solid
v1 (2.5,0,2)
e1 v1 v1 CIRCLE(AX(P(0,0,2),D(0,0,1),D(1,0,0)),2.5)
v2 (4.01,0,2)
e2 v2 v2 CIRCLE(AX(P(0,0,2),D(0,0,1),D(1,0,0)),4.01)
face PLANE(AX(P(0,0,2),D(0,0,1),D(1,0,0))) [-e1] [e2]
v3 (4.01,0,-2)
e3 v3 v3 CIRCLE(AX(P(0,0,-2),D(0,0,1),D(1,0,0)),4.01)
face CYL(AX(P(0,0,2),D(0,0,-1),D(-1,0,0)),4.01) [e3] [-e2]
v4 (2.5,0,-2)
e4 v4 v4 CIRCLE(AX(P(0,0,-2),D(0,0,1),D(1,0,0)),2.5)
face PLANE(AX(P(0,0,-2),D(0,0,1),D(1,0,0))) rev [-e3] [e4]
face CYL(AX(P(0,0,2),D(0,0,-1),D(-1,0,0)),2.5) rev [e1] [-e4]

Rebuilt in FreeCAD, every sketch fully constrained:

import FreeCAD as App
import Part
import Sketcher

doc = App.newDocument("Part")
body = doc.addObject("PartDesign::Body", "Body")

# Sketch on XY plane
sketch1 = body.newObject("Sketcher::SketchObject", "Sketch")
sketch1.AttachmentSupport = (doc.getObject("XY_Plane"), [""])
sketch1.MapMode = "FlatFace"
sketch1.addGeometry([
    Part.Circle(App.Vector(0, 0, 0), App.Vector(0, 0, 1), 4.01),
    Part.Circle(App.Vector(0, 0, 0), App.Vector(0, 0, 1), 2.5),
], False)
sketch1.addConstraint([
    Sketcher.Constraint("Coincident", 0, 3, -1, 1),
    Sketcher.Constraint("Coincident", 1, 3, -1, 1),
    Sketcher.Constraint("Diameter", 1, 5.0),
    Sketcher.Constraint("Diameter", 0, 8.02),
])
pad1 = body.newObject("PartDesign::Pad", "Pad")
pad1.Profile = sketch1
pad1.Length = 4
pad1.Midplane = True

doc.recompute()
